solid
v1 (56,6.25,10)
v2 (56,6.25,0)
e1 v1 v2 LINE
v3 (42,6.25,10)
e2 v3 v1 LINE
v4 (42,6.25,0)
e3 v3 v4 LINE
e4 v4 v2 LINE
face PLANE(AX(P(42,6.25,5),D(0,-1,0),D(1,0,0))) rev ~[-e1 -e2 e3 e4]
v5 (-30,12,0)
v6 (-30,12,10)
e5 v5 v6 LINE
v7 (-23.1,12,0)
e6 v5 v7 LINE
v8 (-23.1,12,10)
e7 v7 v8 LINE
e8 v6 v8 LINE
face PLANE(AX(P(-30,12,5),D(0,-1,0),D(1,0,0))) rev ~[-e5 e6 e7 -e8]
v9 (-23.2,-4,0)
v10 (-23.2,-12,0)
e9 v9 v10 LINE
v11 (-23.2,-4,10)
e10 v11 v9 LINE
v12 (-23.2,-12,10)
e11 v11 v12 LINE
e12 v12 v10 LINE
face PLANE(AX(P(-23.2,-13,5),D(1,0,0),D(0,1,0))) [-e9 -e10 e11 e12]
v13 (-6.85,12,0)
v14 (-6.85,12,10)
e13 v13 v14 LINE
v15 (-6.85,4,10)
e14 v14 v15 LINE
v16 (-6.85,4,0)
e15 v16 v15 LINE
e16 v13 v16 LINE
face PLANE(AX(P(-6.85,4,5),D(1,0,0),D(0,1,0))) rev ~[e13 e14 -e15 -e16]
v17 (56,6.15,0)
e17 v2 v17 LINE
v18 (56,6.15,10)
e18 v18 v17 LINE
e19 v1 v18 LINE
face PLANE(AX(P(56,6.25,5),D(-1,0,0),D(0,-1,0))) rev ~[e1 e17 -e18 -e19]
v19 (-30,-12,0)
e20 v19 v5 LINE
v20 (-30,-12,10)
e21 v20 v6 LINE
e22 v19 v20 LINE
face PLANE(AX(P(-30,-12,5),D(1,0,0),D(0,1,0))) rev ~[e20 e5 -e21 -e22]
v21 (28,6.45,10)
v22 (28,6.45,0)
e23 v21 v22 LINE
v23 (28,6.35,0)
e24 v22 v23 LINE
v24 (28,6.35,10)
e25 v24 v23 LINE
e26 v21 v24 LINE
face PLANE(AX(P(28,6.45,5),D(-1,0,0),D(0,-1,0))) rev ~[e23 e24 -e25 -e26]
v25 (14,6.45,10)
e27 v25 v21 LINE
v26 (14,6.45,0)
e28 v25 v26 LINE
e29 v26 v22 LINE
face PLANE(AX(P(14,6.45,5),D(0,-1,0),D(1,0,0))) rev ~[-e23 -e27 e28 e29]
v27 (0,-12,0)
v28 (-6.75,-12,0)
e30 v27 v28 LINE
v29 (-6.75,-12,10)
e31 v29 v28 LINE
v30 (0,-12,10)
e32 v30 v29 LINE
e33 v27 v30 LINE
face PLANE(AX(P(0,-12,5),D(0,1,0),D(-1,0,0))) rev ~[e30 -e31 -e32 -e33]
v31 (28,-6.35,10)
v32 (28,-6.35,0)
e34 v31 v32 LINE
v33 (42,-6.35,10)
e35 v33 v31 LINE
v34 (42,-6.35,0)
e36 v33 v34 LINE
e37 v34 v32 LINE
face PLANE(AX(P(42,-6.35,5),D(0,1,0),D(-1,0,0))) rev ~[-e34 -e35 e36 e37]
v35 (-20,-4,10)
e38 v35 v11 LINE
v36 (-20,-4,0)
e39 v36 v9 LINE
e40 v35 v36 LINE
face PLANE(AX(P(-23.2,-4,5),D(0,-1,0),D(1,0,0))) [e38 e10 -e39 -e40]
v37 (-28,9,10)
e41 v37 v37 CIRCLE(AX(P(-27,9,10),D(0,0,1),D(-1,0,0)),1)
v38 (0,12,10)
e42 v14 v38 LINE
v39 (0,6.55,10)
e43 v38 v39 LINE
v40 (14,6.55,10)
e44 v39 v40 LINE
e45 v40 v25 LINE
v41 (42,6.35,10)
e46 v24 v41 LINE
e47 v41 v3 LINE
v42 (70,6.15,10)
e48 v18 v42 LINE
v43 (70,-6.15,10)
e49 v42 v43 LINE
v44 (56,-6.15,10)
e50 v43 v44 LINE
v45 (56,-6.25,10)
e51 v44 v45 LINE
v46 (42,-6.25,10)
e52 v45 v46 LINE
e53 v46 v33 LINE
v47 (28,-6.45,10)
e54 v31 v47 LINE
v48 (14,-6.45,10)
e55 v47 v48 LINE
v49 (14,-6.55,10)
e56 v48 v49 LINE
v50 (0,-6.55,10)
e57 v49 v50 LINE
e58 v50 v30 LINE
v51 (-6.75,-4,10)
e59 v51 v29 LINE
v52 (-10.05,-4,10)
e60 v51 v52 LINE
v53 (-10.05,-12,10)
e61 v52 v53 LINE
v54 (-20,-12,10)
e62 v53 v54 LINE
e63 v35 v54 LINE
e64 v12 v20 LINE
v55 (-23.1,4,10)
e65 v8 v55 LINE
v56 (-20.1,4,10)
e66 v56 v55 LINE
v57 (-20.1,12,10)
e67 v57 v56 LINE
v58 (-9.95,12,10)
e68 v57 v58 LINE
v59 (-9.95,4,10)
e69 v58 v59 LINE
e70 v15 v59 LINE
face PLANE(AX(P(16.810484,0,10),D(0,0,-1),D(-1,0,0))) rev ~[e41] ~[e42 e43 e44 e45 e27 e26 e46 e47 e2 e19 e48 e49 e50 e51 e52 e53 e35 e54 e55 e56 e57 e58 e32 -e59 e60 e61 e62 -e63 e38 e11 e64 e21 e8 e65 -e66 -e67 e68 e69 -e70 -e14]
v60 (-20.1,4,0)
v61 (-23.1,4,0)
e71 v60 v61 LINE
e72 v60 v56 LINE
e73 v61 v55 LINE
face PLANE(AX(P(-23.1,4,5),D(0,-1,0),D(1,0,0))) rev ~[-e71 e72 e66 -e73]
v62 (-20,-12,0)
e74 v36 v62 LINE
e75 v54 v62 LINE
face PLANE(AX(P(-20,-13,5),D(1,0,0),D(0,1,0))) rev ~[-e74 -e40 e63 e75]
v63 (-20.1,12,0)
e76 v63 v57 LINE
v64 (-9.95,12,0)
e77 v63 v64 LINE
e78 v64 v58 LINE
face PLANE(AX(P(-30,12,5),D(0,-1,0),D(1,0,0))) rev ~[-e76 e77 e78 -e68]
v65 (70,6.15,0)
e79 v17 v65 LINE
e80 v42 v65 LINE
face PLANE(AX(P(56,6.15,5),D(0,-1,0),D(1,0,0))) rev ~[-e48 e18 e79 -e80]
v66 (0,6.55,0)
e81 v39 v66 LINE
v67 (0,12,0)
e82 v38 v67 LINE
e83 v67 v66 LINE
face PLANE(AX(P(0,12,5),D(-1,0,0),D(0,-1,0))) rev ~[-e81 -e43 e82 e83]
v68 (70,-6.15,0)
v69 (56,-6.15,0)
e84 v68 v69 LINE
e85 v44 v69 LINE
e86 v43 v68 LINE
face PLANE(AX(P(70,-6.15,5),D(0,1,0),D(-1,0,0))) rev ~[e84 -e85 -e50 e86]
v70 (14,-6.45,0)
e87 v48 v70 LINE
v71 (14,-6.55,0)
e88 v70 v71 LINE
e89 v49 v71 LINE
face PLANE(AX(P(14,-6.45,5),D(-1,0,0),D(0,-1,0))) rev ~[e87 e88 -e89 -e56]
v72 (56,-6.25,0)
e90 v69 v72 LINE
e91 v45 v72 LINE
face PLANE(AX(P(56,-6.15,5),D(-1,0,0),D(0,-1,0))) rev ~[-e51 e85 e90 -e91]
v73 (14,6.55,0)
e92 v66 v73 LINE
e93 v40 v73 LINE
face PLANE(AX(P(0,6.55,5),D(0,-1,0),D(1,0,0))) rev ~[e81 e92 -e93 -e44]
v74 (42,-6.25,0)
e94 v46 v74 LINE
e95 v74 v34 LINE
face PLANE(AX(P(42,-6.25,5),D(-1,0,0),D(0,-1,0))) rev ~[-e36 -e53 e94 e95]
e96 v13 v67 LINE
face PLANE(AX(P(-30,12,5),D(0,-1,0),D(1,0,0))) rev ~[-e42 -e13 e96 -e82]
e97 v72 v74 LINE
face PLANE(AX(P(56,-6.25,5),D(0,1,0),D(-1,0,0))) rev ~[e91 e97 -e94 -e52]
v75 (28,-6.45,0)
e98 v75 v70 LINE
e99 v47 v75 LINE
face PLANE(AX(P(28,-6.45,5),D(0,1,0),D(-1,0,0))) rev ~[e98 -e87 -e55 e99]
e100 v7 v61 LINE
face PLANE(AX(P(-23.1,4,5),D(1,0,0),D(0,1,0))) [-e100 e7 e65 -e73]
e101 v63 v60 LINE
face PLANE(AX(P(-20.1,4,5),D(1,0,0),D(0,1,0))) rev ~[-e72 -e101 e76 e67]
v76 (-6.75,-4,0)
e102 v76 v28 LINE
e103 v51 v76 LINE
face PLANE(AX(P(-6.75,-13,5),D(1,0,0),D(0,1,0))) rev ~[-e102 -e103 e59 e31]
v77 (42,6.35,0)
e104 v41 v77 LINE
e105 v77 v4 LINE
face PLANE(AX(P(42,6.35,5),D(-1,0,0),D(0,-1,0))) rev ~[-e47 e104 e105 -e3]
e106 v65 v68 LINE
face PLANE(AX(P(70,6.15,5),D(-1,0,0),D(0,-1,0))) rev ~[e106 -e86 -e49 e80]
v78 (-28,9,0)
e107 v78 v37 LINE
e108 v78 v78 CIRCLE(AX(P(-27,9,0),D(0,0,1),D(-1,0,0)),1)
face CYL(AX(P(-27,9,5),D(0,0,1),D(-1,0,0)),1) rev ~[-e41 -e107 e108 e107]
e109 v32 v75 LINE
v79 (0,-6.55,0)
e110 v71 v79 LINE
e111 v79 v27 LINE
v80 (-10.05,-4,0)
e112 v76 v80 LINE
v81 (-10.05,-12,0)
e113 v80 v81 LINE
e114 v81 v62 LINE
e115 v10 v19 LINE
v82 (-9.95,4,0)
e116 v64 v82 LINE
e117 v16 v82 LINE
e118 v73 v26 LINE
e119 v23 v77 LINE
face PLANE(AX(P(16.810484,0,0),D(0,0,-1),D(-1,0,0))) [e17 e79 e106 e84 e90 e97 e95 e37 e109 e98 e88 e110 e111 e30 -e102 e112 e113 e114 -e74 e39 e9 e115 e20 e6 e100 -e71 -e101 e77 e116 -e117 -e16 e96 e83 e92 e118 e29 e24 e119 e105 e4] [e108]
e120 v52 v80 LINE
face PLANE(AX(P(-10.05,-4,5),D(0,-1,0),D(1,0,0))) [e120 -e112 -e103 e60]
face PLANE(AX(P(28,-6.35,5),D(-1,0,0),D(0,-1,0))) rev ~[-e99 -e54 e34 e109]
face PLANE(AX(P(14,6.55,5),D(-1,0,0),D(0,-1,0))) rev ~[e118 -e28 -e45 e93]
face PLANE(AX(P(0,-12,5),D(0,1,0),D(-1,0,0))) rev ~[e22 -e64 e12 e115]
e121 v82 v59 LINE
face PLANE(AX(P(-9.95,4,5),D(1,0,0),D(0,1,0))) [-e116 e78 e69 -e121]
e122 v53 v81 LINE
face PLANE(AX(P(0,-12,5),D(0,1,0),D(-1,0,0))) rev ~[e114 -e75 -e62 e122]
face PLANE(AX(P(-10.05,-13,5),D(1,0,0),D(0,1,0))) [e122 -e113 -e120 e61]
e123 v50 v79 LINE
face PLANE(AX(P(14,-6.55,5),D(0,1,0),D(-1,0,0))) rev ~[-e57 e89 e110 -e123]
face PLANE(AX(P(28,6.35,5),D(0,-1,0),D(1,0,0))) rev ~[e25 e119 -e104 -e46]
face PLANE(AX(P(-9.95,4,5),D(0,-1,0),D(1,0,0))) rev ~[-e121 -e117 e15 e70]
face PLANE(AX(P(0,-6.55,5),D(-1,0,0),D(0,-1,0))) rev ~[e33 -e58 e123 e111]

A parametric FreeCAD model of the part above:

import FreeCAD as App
import Part
import Sketcher
from FreeCAD import Vector
Q = App.Units.Quantity

doc = App.newDocument("Part")
body = doc.addObject("PartDesign::Body", "Body")

sketch1 = body.newObject("Sketcher::SketchObject", "Sketch")
sketch1.AttachmentSupport = (doc.getObject("XY_Plane"), [""])
sketch1.MapMode = "FlatFace"
sketch1.AttachmentOffset = App.Placement(Vector(0, 0, 5), App.Rotation())
sketch1.addGeometry(Part.LineSegment(Vector(0, 12, 0), Vector(-30, 12, 0)), False)
sketch1.addGeometry(Part.LineSegment(Vector(-30, 12, 0), Vector(-30, -12, 0)), False)
sketch1.addGeometry(Part.LineSegment(Vector(-30, -12, 0), Vector(0, -12, 0)), False)
sketch1.addGeometry(Part.LineSegment(Vector(0, -12, 0), Vector(0, -6.55, 0)), False)
sketch1.addGeometry(Part.LineSegment(Vector(0, -6.55, 0), Vector(14, -6.55, 0)), False)
sketch1.addGeometry(Part.LineSegment(Vector(14, -6.55, 0), Vector(14, -6.45, 0)), False)
sketch1.addGeometry(Part.LineSegment(Vector(14, -6.45, 0), Vector(28, -6.45, 0)), False)
sketch1.addGeometry(Part.LineSegment(Vector(28, -6.45, 0), Vector(28, -6.35, 0)), False)
sketch1.addGeometry(Part.LineSegment(Vector(28, -6.35, 0), Vector(42, -6.35, 0)), False)
sketch1.addGeometry(Part.LineSegment(Vector(42, -6.35, 0), Vector(42, -6.25, 0)), False)
sketch1.addGeometry(Part.LineSegment(Vector(42, -6.25, 0), Vector(56, -6.25, 0)), False)
sketch1.addGeometry(Part.LineSegment(Vector(56, -6.25, 0), Vector(56, -6.15, 0)), False)
sketch1.addGeometry(Part.LineSegment(Vector(56, -6.15, 0), Vector(70, -6.15, 0)), False)
sketch1.addGeometry(Part.LineSegment(Vector(70, -6.15, 0), Vector(70, 6.15, 0)), False)
sketch1.addGeometry(Part.LineSegment(Vector(70, 6.15, 0), Vector(56, 6.15, 0)), False)
sketch1.addGeometry(Part.LineSegment(Vector(56, 6.15, 0), Vector(56, 6.25, 0)), False)
sketch1.addGeometry(Part.LineSegment(Vector(56, 6.25, 0), Vector(42, 6.25, 0)), False)
sketch1.addGeometry(Part.LineSegment(Vector(42, 6.25, 0), Vector(42, 6.35, 0)), False)
sketch1.addGeometry(Part.LineSegment(Vector(42, 6.35, 0), Vector(28, 6.35, 0)), False)
sketch1.addGeometry(Part.LineSegment(Vector(28, 6.35, 0), Vector(28, 6.45, 0)), False)
sketch1.addGeometry(Part.LineSegment(Vector(28, 6.45, 0), Vector(14, 6.45, 0)), False)
sketch1.addGeometry(Part.LineSegment(Vector(14, 6.45, 0), Vector(14, 6.55, 0)), False)
sketch1.addGeometry(Part.LineSegment(Vector(14, 6.55, 0), Vector(0, 6.55, 0)), False)
sketch1.addGeometry(Part.LineSegment(Vector(0, 6.55, 0), Vector(0, 12, 0)), False)
sketch1.addConstraint(Sketcher.Constraint("Coincident", 0, 2, 1, 1))
sketch1.addConstraint(Sketcher.Constraint("Coincident", 1, 2, 2, 1))
sketch1.addConstraint(Sketcher.Constraint("Coincident", 2, 2, 3, 1))
sketch1.addConstraint(Sketcher.Constraint("Coincident", 3, 2, 4, 1))
sketch1.addConstraint(Sketcher.Constraint("Coincident", 4, 2, 5, 1))
sketch1.addConstraint(Sketcher.Constraint("Coincident", 5, 2, 6, 1))
sketch1.addConstraint(Sketcher.Constraint("Coincident", 6, 2, 7, 1))
sketch1.addConstraint(Sketcher.Constraint("Coincident", 7, 2, 8, 1))
sketch1.addConstraint(Sketcher.Constraint("Coincident", 8, 2, 9, 1))
sketch1.addConstraint(Sketcher.Constraint("Coincident", 9, 2, 10, 1))
sketch1.addConstraint(Sketcher.Constraint("Coincident", 10, 2, 11, 1))
sketch1.addConstraint(Sketcher.Constraint("Coincident", 11, 2, 12, 1))
sketch1.addConstraint(Sketcher.Constraint("Coincident", 12, 2, 13, 1))
sketch1.addConstraint(Sketcher.Constraint("Coincident", 13, 2, 14, 1))
sketch1.addConstraint(Sketcher.Constraint("Coincident", 14, 2, 15, 1))
sketch1.addConstraint(Sketcher.Constraint("Coincident", 15, 2, 16, 1))
sketch1.addConstraint(Sketcher.Constraint("Coincident", 16, 2, 17, 1))
sketch1.addConstraint(Sketcher.Constraint("Coincident", 17, 2, 18, 1))
sketch1.addConstraint(Sketcher.Constraint("Coincident", 18, 2, 19, 1))
sketch1.addConstraint(Sketcher.Constraint("Coincident", 19, 2, 20, 1))
sketch1.addConstraint(Sketcher.Constraint("Coincident", 20, 2, 21, 1))
sketch1.addConstraint(Sketcher.Constraint("Coincident", 21, 2, 22, 1))
sketch1.addConstraint(Sketcher.Constraint("Coincident", 22, 2, 23, 1))
sketch1.addConstraint(Sketcher.Constraint("Coincident", 23, 2, 0, 1))
sketch1.addConstraint(Sketcher.Constraint("Horizontal", 0))
sketch1.addConstraint(Sketcher.Constraint("Vertical", 1))
sketch1.addConstraint(Sketcher.Constraint("Horizontal", 2))
sketch1.addConstraint(Sketcher.Constraint("Vertical", 3))
sketch1.addConstraint(Sketcher.Constraint("Horizontal", 4))
sketch1.addConstraint(Sketcher.Constraint("Vertical", 5))
sketch1.addConstraint(Sketcher.Constraint("Horizontal", 6))
sketch1.addConstraint(Sketcher.Constraint("Vertical", 7))
sketch1.addConstraint(Sketcher.Constraint("Horizontal", 8))
sketch1.addConstraint(Sketcher.Constraint("Vertical", 9))
sketch1.addConstraint(Sketcher.Constraint("Horizontal", 10))
sketch1.addConstraint(Sketcher.Constraint("Vertical", 11))
sketch1.addConstraint(Sketcher.Constraint("Horizontal", 12))
sketch1.addConstraint(Sketcher.Constraint("Vertical", 13))
sketch1.addConstraint(Sketcher.Constraint("Horizontal", 14))
sketch1.addConstraint(Sketcher.Constraint("Vertical", 15))
sketch1.addConstraint(Sketcher.Constraint("Horizontal", 16))
sketch1.addConstraint(Sketcher.Constraint("Vertical", 17))
sketch1.addConstraint(Sketcher.Constraint("Horizontal", 18))
sketch1.addConstraint(Sketcher.Constraint("Vertical", 19))
sketch1.addConstraint(Sketcher.Constraint("Horizontal", 20))
sketch1.addConstraint(Sketcher.Constraint("Vertical", 21))
sketch1.addConstraint(Sketcher.Constraint("Horizontal", 22))
sketch1.addConstraint(Sketcher.Constraint("Vertical", 23))
sketch1.addConstraint(Sketcher.Constraint("Symmetric", 3, 2, 22, 2, -1, 1))
sketch1.addConstraint(Sketcher.Constraint("Symmetric", 11, 2, 14, 2, -1))
sketch1.addConstraint(Sketcher.Constraint("Symmetric", 9, 2, 16, 2, -1))
sketch1.addConstraint(Sketcher.Constraint("Symmetric", 7, 2, 18, 2, -1))
sketch1.addConstraint(Sketcher.Constraint("Symmetric", 5, 2, 20, 2, -1))
sketch1.addConstraint(Sketcher.Constraint("Symmetric", 2, 2, 23, 2, -1))
sketch1.addConstraint(Sketcher.Constraint("Equal", 4, 6))
sketch1.addConstraint(Sketcher.Constraint("Equal", 6, 8))
sketch1.addConstraint(Sketcher.Constraint("Equal", 8, 10))
sketch1.addConstraint(Sketcher.Constraint("Equal", 10, 12))
sketch1.addConstraint(Sketcher.Constraint("Equal", 5, 7))
sketch1.addConstraint(Sketcher.Constraint("Equal", 7, 9))
sketch1.addConstraint(Sketcher.Constraint("Equal", 9, 11))
sketch1.addConstraint(Sketcher.Constraint("DistanceX", 0, 2, 0, 1, Q("30 mm")))
sketch1.addConstraint(Sketcher.Constraint("DistanceX", 4, 1, 4, 2, Q("14 mm")))
sketch1.addConstraint(Sketcher.Constraint("DistanceY", 1, 2, 1, 1, Q("24 mm")))
sketch1.addConstraint(Sketcher.Constraint("DistanceY", 5, 1, 5, 2, Q("0.1 mm")))
sketch1.addConstraint(Sketcher.Constraint("DistanceY", 13, 1, 13, 2, Q("12.3 mm")))
pad1 = body.newObject("PartDesign::Pad", "Pad")
pad1.Profile = sketch1
pad1.Length = 10
pad1.Midplane = True

sketch2 = body.newObject("Sketcher::SketchObject", "Sketch001")
sketch2.AttachmentSupport = (doc.getObject("XY_Plane"), [""])
sketch2.MapMode = "FlatFace"
sketch2.AttachmentOffset = App.Placement(Vector(0, 0, 5), App.Rotation())
sketch2.addGeometry(Part.LineSegment(Vector(-23.1, 13, 0), Vector(-23.1, 4, 0)), False)
sketch2.addGeometry(Part.LineSegment(Vector(-23.1, 4, 0), Vector(-20.1, 4, 0)), False)
sketch2.addGeometry(Part.LineSegment(Vector(-20.1, 4, 0), Vector(-20.1, 13, 0)), False)
sketch2.addGeometry(Part.LineSegment(Vector(-20.1, 13, 0), Vector(-23.1, 13, 0)), False)
sketch2.addConstraint(Sketcher.Constraint("Coincident", 0, 2, 1, 1))
sketch2.addConstraint(Sketcher.Constraint("Coincident", 1, 2, 2, 1))
sketch2.addConstraint(Sketcher.Constraint("Coincident", 2, 2, 3, 1))
sketch2.addConstraint(Sketcher.Constraint("Coincident", 3, 2, 0, 1))
sketch2.addConstraint(Sketcher.Constraint("Vertical", 0))
sketch2.addConstraint(Sketcher.Constraint("Horizontal", 1))
sketch2.addConstraint(Sketcher.Constraint("Vertical", 2))
sketch2.addConstraint(Sketcher.Constraint("Horizontal", 3))
sketch2.addConstraint(Sketcher.Constraint("DistanceX", 1, 1, 1, 2, Q("3 mm")))
sketch2.addConstraint(Sketcher.Constraint("DistanceY", 0, 2, 0, 1, Q("9 mm")))
sketch2.addConstraint(Sketcher.Constraint("DistanceY", -1, 1, 0, 2, Q("4 mm")))
sketch2.addConstraint(Sketcher.Constraint("DistanceX", 0, 2, -1, 1, Q("23.1 mm")))
pocket1 = body.newObject("PartDesign::Pocket", "Pocket")
pocket1.Profile = sketch2
pocket1.Length = 12
pocket1.Midplane = True

sketch3 = body.newObject("Sketcher::SketchObject", "Sketch002")
sketch3.AttachmentSupport = (doc.getObject("XY_Plane"), [""])
sketch3.MapMode = "FlatFace"
sketch3.AttachmentOffset = App.Placement(Vector(0, 0, 5), App.Rotation())
sketch3.addGeometry(Part.LineSegment(Vector(-9.9, 13, 0), Vector(-9.9, 4, 0)), False)
sketch3.addGeometry(Part.LineSegment(Vector(-9.9, 4, 0), Vector(-6.8, 4, 0)), False)
sketch3.addGeometry(Part.LineSegment(Vector(-6.8, 4, 0), Vector(-6.8, 13, 0)), False)
sketch3.addGeometry(Part.LineSegment(Vector(-6.8, 13, 0), Vector(-9.9, 13, 0)), False)
sketch3.addConstraint(Sketcher.Constraint("Coincident", 0, 2, 1, 1))
sketch3.addConstraint(Sketcher.Constraint("Coincident", 1, 2, 2, 1))
sketch3.addConstraint(Sketcher.Constraint("Coincident", 2, 2, 3, 1))
sketch3.addConstraint(Sketcher.Constraint("Coincident", 3, 2, 0, 1))
sketch3.addConstraint(Sketcher.Constraint("Vertical", 0))
sketch3.addConstraint(Sketcher.Constraint("Horizontal", 1))
sketch3.addConstraint(Sketcher.Constraint("Vertical", 2))
sketch3.addConstraint(Sketcher.Constraint("Horizontal", 3))
sketch3.addConstraint(Sketcher.Constraint("DistanceY", 0, 2, 0, 1, Q("9 mm")))
sketch3.addConstraint(Sketcher.Constraint("DistanceX", 1, 1, 1, 2, Q("3.1 mm")))
sketch3.addConstraint(Sketcher.Constraint("DistanceY", -1, 1, 0, 2, Q("4 mm")))
sketch3.addConstraint(Sketcher.Constraint("DistanceX", 0, 2, -1, 1, Q("9.95 mm")))
pocket2 = body.newObject("PartDesign::Pocket", "Pocket001")
pocket2.Profile = sketch3
pocket2.Length = 12
pocket2.Midplane = True

sketch4 = body.newObject("Sketcher::SketchObject", "Sketch003")
sketch4.AttachmentSupport = (doc.getObject("XY_Plane"), [""])
sketch4.MapMode = "FlatFace"
sketch4.AttachmentOffset = App.Placement(Vector(0, 0, 5), App.Rotation())
sketch4.addGeometry(Part.LineSegment(Vector(-23.2, -4, 0), Vector(-23.2, -13, 0)), False)
sketch4.addGeometry(Part.LineSegment(Vector(-23.2, -13, 0), Vector(-20, -13, 0)), False)
sketch4.addGeometry(Part.LineSegment(Vector(-20, -13, 0), Vector(-20, -4, 0)), False)
sketch4.addGeometry(Part.LineSegment(Vector(-20, -4, 0), Vector(-23.2, -4, 0)), False)
sketch4.addConstraint(Sketcher.Constraint("Coincident", 0, 2, 1, 1))
sketch4.addConstraint(Sketcher.Constraint("Coincident", 1, 2, 2, 1))
sketch4.addConstraint(Sketcher.Constraint("Coincident", 2, 2, 3, 1))
sketch4.addConstraint(Sketcher.Constraint("Coincident", 3, 2, 0, 1))
sketch4.addConstraint(Sketcher.Constraint("Vertical", 0))
sketch4.addConstraint(Sketcher.Constraint("Horizontal", 1))
sketch4.addConstraint(Sketcher.Constraint("Vertical", 2))
sketch4.addConstraint(Sketcher.Constraint("Horizontal", 3))
sketch4.addConstraint(Sketcher.Constraint("DistanceY", 0, 2, 0, 1, Q("9 mm")))
sketch4.addConstraint(Sketcher.Constraint("DistanceX", 1, 1, 1, 2, Q("3.2 mm")))
sketch4.addConstraint(Sketcher.Constraint("DistanceY", 0, 2, -1, 1, Q("13 mm")))
sketch4.addConstraint(Sketcher.Constraint("DistanceX", 1, 2, -1, 1, Q("20 mm")))
pocket3 = body.newObject("PartDesign::Pocket", "Pocket002")
pocket3.Profile = sketch4
pocket3.Length = 12
pocket3.Midplane = True

sketch5 = body.newObject("Sketcher::SketchObject", "Sketch004")
sketch5.AttachmentSupport = (doc.getObject("XY_Plane"), [""])
sketch5.MapMode = "FlatFace"
sketch5.AttachmentOffset = App.Placement(Vector(0, 0, 5), App.Rotation())
sketch5.addGeometry(Part.LineSegment(Vector(-10.1, -4, 0), Vector(-10.1, -13, 0)), False)
sketch5.addGeometry(Part.LineSegment(Vector(-10.1, -13, 0), Vector(-6.8, -13, 0)), False)
sketch5.addGeometry(Part.LineSegment(Vector(-6.8, -13, 0), Vector(-6.8, -4, 0)), False)
sketch5.addGeometry(Part.LineSegment(Vector(-6.8, -4, 0), Vector(-10.1, -4, 0)), False)
sketch5.addConstraint(Sketcher.Constraint("Coincident", 0, 2, 1, 1))
sketch5.addConstraint(Sketcher.Constraint("Coincident", 1, 2, 2, 1))
sketch5.addConstraint(Sketcher.Constraint("Coincident", 2, 2, 3, 1))
sketch5.addConstraint(Sketcher.Constraint("Coincident", 3, 2, 0, 1))
sketch5.addConstraint(Sketcher.Constraint("Vertical", 0))
sketch5.addConstraint(Sketcher.Constraint("Horizontal", 1))
sketch5.addConstraint(Sketcher.Constraint("Vertical", 2))
sketch5.addConstraint(Sketcher.Constraint("Horizontal", 3))
sketch5.addConstraint(Sketcher.Constraint("DistanceY", 0, 2, 0, 1, Q("9 mm")))
sketch5.addConstraint(Sketcher.Constraint("DistanceX", 1, 1, 1, 2, Q("3.3 mm")))
sketch5.addConstraint(Sketcher.Constraint("DistanceY", 0, 2, -1, 1, Q("13 mm")))
sketch5.addConstraint(Sketcher.Constraint("DistanceX", 0, 2, -1, 1, Q("10.05 mm")))
pocket4 = body.newObject("PartDesign::Pocket", "Pocket003")
pocket4.Profile = sketch5
pocket4.Length = 12
pocket4.Midplane = True

sketch6 = body.newObject("Sketcher::SketchObject", "Sketch005")
sketch6.AttachmentSupport = (doc.getObject("XY_Plane"), [""])
sketch6.MapMode = "FlatFace"
sketch6.AttachmentOffset = App.Placement(Vector(0, 0, 5), App.Rotation())
sketch6.addGeometry(Part.Circle(Vector(-27, 9, 0), Vector(0, 0, 1), 1), False)
sketch6.addConstraint(Sketcher.Constraint("Diameter", 0, Q("2 mm")))
sketch6.addConstraint(Sketcher.Constraint("DistanceX", 0, 3, -1, 1, Q("27 mm")))
sketch6.addConstraint(Sketcher.Constraint("DistanceY", -1, 1, 0, 3, Q("9 mm")))
pocket5 = body.newObject("PartDesign::Pocket", "Pocket004")
pocket5.Profile = sketch6
pocket5.Length = 12
pocket5.Midplane = True

doc.recompute()
